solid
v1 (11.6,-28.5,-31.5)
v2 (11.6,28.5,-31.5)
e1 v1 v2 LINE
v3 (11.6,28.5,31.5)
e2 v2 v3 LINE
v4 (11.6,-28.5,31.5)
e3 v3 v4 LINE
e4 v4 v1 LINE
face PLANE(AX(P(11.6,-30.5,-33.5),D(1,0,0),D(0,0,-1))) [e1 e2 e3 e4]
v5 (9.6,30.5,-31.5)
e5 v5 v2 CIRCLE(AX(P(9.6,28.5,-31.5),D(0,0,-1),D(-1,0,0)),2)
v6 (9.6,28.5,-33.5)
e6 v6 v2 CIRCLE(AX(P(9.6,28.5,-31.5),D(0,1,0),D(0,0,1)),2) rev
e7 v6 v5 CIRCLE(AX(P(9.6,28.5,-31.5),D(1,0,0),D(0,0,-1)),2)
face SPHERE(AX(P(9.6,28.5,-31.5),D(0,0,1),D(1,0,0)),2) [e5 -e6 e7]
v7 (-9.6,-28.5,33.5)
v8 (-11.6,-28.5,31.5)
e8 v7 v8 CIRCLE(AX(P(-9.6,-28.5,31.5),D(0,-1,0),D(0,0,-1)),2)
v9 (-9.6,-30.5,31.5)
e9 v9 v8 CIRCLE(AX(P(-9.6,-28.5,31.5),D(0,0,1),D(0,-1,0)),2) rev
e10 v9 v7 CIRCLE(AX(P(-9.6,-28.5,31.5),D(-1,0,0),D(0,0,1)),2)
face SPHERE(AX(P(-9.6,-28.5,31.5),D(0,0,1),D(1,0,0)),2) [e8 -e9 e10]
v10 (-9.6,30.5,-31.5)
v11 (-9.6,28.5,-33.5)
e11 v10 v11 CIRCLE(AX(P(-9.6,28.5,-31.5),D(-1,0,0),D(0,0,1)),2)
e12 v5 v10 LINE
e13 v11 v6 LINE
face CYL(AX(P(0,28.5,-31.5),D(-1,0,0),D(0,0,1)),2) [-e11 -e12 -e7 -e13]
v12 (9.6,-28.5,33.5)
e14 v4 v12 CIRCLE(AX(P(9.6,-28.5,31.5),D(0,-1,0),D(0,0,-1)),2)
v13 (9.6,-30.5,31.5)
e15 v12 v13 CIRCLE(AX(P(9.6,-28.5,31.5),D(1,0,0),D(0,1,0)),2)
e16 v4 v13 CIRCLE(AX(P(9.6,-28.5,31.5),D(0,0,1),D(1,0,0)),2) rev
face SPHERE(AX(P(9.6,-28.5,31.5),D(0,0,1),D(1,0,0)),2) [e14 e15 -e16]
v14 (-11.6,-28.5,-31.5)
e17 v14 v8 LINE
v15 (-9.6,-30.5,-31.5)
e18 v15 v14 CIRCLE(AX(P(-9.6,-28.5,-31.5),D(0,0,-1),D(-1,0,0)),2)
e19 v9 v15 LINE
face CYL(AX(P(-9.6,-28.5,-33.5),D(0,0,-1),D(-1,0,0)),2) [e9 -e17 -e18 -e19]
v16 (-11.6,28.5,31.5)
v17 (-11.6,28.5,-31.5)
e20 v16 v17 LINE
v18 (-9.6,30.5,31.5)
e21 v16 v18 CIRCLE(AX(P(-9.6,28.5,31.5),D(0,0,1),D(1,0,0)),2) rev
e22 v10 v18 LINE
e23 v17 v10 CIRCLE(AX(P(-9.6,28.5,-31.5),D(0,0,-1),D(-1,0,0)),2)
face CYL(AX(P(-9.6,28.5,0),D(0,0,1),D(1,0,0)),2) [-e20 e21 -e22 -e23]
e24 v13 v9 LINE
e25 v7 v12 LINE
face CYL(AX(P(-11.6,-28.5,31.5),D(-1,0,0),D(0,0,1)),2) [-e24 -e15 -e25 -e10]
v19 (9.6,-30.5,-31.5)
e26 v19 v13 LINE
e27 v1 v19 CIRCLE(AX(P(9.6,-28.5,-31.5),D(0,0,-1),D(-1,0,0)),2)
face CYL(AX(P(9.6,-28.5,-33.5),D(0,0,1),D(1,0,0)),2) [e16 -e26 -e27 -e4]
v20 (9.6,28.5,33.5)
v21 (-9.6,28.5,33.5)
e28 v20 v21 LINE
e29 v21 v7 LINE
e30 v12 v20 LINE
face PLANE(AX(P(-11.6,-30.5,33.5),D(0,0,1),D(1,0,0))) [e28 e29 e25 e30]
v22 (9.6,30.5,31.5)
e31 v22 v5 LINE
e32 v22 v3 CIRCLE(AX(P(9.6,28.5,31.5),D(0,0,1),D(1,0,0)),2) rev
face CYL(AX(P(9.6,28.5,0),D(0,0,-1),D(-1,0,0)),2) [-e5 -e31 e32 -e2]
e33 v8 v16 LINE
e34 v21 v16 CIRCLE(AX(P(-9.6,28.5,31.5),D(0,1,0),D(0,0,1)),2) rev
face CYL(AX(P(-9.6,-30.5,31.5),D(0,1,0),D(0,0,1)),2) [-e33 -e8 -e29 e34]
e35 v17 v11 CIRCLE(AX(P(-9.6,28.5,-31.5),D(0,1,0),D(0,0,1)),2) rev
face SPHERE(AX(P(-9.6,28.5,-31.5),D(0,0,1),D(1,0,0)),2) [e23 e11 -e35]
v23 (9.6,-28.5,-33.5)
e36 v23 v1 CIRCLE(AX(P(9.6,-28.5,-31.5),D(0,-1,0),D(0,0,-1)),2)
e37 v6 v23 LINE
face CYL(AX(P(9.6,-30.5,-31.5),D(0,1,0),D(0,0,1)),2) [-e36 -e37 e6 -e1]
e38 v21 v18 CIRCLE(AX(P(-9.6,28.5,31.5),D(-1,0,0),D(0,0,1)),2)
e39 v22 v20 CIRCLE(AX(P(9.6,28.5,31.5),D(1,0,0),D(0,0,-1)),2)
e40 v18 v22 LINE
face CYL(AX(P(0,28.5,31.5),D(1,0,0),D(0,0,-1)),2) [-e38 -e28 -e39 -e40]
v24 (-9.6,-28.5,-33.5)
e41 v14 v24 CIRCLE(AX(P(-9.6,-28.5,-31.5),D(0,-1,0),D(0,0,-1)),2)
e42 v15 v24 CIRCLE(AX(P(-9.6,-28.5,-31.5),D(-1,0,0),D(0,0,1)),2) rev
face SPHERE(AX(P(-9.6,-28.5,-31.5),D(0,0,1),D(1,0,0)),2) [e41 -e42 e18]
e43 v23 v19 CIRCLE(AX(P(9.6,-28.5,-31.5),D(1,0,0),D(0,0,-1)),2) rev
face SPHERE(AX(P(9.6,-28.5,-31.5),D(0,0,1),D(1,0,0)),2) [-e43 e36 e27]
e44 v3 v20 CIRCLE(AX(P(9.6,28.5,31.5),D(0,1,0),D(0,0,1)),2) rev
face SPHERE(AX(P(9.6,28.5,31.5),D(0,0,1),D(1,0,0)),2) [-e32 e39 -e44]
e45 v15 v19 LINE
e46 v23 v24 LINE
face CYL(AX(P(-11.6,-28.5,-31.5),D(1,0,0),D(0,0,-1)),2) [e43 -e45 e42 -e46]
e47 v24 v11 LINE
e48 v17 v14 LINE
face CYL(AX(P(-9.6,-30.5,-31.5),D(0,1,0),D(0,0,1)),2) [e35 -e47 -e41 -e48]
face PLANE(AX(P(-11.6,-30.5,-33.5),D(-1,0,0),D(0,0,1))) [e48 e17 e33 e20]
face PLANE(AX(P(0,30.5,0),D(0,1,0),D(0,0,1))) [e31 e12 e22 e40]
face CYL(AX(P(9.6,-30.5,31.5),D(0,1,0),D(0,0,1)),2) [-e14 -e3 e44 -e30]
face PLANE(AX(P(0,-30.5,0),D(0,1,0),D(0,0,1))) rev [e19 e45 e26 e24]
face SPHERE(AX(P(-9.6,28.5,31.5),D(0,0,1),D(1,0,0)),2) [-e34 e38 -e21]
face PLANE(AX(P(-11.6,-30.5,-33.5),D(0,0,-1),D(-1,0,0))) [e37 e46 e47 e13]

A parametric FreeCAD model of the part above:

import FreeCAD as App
import Part
import Sketcher
from FreeCAD import Vector


def add_polygon(sketch, points):
    """Adds a closed chain of lines whose ends are joined by coincident constraints."""
    first, n = sketch.GeometryCount, len(points)
    for a, b in zip(points, points[1:] + points[:1]):
        sketch.addGeometry(Part.LineSegment(App.Vector(*a, 0), App.Vector(*b, 0)), False)
    for i in range(n):
        sketch.addConstraint(Sketcher.Constraint("Coincident", first + i, 2, first + (i + 1) % n, 1))

doc = App.newDocument("Part")
body = doc.addObject("PartDesign::Body", "Body")

# Sketch on XZ plane
sketch1 = body.newObject("Sketcher::SketchObject", "Sketch")
sketch1.AttachmentSupport = (doc.getObject("XZ_Plane"), [""])
sketch1.MapMode = "FlatFace"
add_polygon(sketch1, [(-12, -34), (-12, 34), (12, 34), (12, -34)])  # lines 0-3
sketch1.addConstraint(Sketcher.Constraint("Vertical", 0))
sketch1.addConstraint(Sketcher.Constraint("Horizontal", 1))
sketch1.addConstraint(Sketcher.Constraint("Vertical", 2))
sketch1.addConstraint(Sketcher.Constraint("Horizontal", 3))
sketch1.addConstraint(Sketcher.Constraint("Symmetric", 0, 2, 2, 2, -1, 1))
sketch1.addConstraint(Sketcher.Constraint("DistanceY", 0, 1, 0, 2, 67.0))
sketch1.addConstraint(Sketcher.Constraint("DistanceX", 1, 1, 1, 2, 23.2))
pad1 = body.newObject("PartDesign::Pad", "Pad")
pad1.Profile = sketch1
pad1.Type = "TwoLengths"
pad1.Length = 30.5
pad1.Length2 = 30.5
pad1.Reversed = True
doc.recompute()

fillet = body.newObject("PartDesign::Fillet", "Fillet")
fillet.Base = (pad1, ["Edge1"])
fillet.UseAllEdges = True
fillet.Radius = 2

doc.recompute()
